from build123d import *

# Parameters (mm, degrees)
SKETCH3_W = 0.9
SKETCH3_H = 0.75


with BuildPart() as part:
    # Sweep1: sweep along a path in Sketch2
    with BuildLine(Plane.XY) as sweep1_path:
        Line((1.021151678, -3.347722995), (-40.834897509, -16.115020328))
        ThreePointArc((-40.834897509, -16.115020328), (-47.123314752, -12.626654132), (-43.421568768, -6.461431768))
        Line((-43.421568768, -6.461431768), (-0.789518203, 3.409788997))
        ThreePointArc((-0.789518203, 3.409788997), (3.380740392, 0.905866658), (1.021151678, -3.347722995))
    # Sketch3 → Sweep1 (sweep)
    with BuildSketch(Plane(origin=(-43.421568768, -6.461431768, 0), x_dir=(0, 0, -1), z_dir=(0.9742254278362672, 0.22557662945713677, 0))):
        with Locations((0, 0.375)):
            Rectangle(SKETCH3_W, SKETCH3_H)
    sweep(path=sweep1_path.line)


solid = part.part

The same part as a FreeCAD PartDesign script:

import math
import FreeCAD as App
import Part
import Sketcher
from FreeCAD import Vector

doc = App.newDocument("Part")
body = doc.addObject("PartDesign::Body", "Body")

sketch1 = body.newObject("Sketcher::SketchObject", "Sketch")
sketch1.Placement = App.Placement(Vector(-43.421569, -6.461432, 0), App.Rotation(Vector(0, 0, -1), Vector(-0.225576629, 0.974225428, 0), Vector(0.974225428, 0.225576629, 0), "ZXY"))
sketch1.addGeometry([
    Part.LineSegment(Vector(-0.5, 0.8, 0), Vector(-0.5, 0, 0)),
    Part.LineSegment(Vector(-0.5, 0, 0), Vector(0.5, 0, 0)),
    Part.LineSegment(Vector(0.5, 0, 0), Vector(0.5, 0.8, 0)),
    Part.LineSegment(Vector(0.5, 0.8, 0), Vector(-0.5, 0.8, 0)),
], False)
sketch1.addConstraint([
    Sketcher.Constraint("Coincident", 0, 2, 1, 1),
    Sketcher.Constraint("Coincident", 1, 2, 2, 1),
    Sketcher.Constraint("Coincident", 2, 2, 3, 1),
    Sketcher.Constraint("Coincident", 3, 2, 0, 1),
    Sketcher.Constraint("Vertical", 0),
    Sketcher.Constraint("Horizontal", 1),
    Sketcher.Constraint("Vertical", 2),
    Sketcher.Constraint("Horizontal", 3),
    Sketcher.Constraint("Symmetric", 0, 2, 1, 2, -1, 1),
    Sketcher.Constraint("DistanceX", 1, 1, 1, 2, 0.9),
    Sketcher.Constraint("DistanceY", 0, 2, 0, 1, 0.75),
])

sketch2 = body.newObject("Sketcher::SketchObject", "Sketch001")
sketch2.AttachmentSupport = (doc.getObject("XY_Plane"), [""])
sketch2.MapMode = "FlatFace"
sketch2.addGeometry([
    Part.LineSegment(Vector(1.021152, -3.347723, 0), Vector(-40.834898, -16.11502, 0)),
    Part.ArcOfCircle(Part.Circle(Vector(-42.293686, -11.332559, 0), Vector(0, 0, 1), 5), math.radians(103.036788), math.radians(286.963212)),
    Part.LineSegment(Vector(-43.421569, -6.461432, 0), Vector(-0.789518, 3.409789, 0)),
    Part.ArcOfCircle(Part.Circle(Vector(0, 0, 0), Vector(0, 0, 1), 3.5), math.radians(-73.036788), math.radians(103.036788)),
], False)
sketch2.addConstraint([
    Sketcher.Constraint("Coincident", 0, 2, 1, 2),
    Sketcher.Constraint("Coincident", 1, 1, 2, 1),
    Sketcher.Constraint("Coincident", 2, 2, 3, 2),
    Sketcher.Constraint("Coincident", 3, 1, 0, 1),
    Sketcher.Constraint("Coincident", 3, 3, -1, 1),
    Sketcher.Constraint("Radius", 1, 5.0),
    Sketcher.Constraint("Radius", 3, 3.5),
    Sketcher.Constraint("DistanceY", 1, 3, -1, 1, 11.332559),
    Sketcher.Constraint("DistanceY", 0, 2, -1, 1, 16.11502),
    Sketcher.Constraint("DistanceX", 1, 1, -1, 1, 43.421569),
    Sketcher.Constraint("DistanceY", 1, 1, -1, 1, 6.461432),
    Sketcher.Constraint("DistanceX", 2, 2, -1, 1, 0.789518),
    Sketcher.Constraint("DistanceX", -1, 1, 3, 1, 1.021152),
])
doc.recompute()

additivepipe = body.newObject("PartDesign::AdditivePipe", "AdditivePipe")
additivepipe.Profile = sketch1
additivepipe.Spine = (sketch2, ["Edge1", "Edge2", "Edge3", "Edge4"])

doc.recompute()
